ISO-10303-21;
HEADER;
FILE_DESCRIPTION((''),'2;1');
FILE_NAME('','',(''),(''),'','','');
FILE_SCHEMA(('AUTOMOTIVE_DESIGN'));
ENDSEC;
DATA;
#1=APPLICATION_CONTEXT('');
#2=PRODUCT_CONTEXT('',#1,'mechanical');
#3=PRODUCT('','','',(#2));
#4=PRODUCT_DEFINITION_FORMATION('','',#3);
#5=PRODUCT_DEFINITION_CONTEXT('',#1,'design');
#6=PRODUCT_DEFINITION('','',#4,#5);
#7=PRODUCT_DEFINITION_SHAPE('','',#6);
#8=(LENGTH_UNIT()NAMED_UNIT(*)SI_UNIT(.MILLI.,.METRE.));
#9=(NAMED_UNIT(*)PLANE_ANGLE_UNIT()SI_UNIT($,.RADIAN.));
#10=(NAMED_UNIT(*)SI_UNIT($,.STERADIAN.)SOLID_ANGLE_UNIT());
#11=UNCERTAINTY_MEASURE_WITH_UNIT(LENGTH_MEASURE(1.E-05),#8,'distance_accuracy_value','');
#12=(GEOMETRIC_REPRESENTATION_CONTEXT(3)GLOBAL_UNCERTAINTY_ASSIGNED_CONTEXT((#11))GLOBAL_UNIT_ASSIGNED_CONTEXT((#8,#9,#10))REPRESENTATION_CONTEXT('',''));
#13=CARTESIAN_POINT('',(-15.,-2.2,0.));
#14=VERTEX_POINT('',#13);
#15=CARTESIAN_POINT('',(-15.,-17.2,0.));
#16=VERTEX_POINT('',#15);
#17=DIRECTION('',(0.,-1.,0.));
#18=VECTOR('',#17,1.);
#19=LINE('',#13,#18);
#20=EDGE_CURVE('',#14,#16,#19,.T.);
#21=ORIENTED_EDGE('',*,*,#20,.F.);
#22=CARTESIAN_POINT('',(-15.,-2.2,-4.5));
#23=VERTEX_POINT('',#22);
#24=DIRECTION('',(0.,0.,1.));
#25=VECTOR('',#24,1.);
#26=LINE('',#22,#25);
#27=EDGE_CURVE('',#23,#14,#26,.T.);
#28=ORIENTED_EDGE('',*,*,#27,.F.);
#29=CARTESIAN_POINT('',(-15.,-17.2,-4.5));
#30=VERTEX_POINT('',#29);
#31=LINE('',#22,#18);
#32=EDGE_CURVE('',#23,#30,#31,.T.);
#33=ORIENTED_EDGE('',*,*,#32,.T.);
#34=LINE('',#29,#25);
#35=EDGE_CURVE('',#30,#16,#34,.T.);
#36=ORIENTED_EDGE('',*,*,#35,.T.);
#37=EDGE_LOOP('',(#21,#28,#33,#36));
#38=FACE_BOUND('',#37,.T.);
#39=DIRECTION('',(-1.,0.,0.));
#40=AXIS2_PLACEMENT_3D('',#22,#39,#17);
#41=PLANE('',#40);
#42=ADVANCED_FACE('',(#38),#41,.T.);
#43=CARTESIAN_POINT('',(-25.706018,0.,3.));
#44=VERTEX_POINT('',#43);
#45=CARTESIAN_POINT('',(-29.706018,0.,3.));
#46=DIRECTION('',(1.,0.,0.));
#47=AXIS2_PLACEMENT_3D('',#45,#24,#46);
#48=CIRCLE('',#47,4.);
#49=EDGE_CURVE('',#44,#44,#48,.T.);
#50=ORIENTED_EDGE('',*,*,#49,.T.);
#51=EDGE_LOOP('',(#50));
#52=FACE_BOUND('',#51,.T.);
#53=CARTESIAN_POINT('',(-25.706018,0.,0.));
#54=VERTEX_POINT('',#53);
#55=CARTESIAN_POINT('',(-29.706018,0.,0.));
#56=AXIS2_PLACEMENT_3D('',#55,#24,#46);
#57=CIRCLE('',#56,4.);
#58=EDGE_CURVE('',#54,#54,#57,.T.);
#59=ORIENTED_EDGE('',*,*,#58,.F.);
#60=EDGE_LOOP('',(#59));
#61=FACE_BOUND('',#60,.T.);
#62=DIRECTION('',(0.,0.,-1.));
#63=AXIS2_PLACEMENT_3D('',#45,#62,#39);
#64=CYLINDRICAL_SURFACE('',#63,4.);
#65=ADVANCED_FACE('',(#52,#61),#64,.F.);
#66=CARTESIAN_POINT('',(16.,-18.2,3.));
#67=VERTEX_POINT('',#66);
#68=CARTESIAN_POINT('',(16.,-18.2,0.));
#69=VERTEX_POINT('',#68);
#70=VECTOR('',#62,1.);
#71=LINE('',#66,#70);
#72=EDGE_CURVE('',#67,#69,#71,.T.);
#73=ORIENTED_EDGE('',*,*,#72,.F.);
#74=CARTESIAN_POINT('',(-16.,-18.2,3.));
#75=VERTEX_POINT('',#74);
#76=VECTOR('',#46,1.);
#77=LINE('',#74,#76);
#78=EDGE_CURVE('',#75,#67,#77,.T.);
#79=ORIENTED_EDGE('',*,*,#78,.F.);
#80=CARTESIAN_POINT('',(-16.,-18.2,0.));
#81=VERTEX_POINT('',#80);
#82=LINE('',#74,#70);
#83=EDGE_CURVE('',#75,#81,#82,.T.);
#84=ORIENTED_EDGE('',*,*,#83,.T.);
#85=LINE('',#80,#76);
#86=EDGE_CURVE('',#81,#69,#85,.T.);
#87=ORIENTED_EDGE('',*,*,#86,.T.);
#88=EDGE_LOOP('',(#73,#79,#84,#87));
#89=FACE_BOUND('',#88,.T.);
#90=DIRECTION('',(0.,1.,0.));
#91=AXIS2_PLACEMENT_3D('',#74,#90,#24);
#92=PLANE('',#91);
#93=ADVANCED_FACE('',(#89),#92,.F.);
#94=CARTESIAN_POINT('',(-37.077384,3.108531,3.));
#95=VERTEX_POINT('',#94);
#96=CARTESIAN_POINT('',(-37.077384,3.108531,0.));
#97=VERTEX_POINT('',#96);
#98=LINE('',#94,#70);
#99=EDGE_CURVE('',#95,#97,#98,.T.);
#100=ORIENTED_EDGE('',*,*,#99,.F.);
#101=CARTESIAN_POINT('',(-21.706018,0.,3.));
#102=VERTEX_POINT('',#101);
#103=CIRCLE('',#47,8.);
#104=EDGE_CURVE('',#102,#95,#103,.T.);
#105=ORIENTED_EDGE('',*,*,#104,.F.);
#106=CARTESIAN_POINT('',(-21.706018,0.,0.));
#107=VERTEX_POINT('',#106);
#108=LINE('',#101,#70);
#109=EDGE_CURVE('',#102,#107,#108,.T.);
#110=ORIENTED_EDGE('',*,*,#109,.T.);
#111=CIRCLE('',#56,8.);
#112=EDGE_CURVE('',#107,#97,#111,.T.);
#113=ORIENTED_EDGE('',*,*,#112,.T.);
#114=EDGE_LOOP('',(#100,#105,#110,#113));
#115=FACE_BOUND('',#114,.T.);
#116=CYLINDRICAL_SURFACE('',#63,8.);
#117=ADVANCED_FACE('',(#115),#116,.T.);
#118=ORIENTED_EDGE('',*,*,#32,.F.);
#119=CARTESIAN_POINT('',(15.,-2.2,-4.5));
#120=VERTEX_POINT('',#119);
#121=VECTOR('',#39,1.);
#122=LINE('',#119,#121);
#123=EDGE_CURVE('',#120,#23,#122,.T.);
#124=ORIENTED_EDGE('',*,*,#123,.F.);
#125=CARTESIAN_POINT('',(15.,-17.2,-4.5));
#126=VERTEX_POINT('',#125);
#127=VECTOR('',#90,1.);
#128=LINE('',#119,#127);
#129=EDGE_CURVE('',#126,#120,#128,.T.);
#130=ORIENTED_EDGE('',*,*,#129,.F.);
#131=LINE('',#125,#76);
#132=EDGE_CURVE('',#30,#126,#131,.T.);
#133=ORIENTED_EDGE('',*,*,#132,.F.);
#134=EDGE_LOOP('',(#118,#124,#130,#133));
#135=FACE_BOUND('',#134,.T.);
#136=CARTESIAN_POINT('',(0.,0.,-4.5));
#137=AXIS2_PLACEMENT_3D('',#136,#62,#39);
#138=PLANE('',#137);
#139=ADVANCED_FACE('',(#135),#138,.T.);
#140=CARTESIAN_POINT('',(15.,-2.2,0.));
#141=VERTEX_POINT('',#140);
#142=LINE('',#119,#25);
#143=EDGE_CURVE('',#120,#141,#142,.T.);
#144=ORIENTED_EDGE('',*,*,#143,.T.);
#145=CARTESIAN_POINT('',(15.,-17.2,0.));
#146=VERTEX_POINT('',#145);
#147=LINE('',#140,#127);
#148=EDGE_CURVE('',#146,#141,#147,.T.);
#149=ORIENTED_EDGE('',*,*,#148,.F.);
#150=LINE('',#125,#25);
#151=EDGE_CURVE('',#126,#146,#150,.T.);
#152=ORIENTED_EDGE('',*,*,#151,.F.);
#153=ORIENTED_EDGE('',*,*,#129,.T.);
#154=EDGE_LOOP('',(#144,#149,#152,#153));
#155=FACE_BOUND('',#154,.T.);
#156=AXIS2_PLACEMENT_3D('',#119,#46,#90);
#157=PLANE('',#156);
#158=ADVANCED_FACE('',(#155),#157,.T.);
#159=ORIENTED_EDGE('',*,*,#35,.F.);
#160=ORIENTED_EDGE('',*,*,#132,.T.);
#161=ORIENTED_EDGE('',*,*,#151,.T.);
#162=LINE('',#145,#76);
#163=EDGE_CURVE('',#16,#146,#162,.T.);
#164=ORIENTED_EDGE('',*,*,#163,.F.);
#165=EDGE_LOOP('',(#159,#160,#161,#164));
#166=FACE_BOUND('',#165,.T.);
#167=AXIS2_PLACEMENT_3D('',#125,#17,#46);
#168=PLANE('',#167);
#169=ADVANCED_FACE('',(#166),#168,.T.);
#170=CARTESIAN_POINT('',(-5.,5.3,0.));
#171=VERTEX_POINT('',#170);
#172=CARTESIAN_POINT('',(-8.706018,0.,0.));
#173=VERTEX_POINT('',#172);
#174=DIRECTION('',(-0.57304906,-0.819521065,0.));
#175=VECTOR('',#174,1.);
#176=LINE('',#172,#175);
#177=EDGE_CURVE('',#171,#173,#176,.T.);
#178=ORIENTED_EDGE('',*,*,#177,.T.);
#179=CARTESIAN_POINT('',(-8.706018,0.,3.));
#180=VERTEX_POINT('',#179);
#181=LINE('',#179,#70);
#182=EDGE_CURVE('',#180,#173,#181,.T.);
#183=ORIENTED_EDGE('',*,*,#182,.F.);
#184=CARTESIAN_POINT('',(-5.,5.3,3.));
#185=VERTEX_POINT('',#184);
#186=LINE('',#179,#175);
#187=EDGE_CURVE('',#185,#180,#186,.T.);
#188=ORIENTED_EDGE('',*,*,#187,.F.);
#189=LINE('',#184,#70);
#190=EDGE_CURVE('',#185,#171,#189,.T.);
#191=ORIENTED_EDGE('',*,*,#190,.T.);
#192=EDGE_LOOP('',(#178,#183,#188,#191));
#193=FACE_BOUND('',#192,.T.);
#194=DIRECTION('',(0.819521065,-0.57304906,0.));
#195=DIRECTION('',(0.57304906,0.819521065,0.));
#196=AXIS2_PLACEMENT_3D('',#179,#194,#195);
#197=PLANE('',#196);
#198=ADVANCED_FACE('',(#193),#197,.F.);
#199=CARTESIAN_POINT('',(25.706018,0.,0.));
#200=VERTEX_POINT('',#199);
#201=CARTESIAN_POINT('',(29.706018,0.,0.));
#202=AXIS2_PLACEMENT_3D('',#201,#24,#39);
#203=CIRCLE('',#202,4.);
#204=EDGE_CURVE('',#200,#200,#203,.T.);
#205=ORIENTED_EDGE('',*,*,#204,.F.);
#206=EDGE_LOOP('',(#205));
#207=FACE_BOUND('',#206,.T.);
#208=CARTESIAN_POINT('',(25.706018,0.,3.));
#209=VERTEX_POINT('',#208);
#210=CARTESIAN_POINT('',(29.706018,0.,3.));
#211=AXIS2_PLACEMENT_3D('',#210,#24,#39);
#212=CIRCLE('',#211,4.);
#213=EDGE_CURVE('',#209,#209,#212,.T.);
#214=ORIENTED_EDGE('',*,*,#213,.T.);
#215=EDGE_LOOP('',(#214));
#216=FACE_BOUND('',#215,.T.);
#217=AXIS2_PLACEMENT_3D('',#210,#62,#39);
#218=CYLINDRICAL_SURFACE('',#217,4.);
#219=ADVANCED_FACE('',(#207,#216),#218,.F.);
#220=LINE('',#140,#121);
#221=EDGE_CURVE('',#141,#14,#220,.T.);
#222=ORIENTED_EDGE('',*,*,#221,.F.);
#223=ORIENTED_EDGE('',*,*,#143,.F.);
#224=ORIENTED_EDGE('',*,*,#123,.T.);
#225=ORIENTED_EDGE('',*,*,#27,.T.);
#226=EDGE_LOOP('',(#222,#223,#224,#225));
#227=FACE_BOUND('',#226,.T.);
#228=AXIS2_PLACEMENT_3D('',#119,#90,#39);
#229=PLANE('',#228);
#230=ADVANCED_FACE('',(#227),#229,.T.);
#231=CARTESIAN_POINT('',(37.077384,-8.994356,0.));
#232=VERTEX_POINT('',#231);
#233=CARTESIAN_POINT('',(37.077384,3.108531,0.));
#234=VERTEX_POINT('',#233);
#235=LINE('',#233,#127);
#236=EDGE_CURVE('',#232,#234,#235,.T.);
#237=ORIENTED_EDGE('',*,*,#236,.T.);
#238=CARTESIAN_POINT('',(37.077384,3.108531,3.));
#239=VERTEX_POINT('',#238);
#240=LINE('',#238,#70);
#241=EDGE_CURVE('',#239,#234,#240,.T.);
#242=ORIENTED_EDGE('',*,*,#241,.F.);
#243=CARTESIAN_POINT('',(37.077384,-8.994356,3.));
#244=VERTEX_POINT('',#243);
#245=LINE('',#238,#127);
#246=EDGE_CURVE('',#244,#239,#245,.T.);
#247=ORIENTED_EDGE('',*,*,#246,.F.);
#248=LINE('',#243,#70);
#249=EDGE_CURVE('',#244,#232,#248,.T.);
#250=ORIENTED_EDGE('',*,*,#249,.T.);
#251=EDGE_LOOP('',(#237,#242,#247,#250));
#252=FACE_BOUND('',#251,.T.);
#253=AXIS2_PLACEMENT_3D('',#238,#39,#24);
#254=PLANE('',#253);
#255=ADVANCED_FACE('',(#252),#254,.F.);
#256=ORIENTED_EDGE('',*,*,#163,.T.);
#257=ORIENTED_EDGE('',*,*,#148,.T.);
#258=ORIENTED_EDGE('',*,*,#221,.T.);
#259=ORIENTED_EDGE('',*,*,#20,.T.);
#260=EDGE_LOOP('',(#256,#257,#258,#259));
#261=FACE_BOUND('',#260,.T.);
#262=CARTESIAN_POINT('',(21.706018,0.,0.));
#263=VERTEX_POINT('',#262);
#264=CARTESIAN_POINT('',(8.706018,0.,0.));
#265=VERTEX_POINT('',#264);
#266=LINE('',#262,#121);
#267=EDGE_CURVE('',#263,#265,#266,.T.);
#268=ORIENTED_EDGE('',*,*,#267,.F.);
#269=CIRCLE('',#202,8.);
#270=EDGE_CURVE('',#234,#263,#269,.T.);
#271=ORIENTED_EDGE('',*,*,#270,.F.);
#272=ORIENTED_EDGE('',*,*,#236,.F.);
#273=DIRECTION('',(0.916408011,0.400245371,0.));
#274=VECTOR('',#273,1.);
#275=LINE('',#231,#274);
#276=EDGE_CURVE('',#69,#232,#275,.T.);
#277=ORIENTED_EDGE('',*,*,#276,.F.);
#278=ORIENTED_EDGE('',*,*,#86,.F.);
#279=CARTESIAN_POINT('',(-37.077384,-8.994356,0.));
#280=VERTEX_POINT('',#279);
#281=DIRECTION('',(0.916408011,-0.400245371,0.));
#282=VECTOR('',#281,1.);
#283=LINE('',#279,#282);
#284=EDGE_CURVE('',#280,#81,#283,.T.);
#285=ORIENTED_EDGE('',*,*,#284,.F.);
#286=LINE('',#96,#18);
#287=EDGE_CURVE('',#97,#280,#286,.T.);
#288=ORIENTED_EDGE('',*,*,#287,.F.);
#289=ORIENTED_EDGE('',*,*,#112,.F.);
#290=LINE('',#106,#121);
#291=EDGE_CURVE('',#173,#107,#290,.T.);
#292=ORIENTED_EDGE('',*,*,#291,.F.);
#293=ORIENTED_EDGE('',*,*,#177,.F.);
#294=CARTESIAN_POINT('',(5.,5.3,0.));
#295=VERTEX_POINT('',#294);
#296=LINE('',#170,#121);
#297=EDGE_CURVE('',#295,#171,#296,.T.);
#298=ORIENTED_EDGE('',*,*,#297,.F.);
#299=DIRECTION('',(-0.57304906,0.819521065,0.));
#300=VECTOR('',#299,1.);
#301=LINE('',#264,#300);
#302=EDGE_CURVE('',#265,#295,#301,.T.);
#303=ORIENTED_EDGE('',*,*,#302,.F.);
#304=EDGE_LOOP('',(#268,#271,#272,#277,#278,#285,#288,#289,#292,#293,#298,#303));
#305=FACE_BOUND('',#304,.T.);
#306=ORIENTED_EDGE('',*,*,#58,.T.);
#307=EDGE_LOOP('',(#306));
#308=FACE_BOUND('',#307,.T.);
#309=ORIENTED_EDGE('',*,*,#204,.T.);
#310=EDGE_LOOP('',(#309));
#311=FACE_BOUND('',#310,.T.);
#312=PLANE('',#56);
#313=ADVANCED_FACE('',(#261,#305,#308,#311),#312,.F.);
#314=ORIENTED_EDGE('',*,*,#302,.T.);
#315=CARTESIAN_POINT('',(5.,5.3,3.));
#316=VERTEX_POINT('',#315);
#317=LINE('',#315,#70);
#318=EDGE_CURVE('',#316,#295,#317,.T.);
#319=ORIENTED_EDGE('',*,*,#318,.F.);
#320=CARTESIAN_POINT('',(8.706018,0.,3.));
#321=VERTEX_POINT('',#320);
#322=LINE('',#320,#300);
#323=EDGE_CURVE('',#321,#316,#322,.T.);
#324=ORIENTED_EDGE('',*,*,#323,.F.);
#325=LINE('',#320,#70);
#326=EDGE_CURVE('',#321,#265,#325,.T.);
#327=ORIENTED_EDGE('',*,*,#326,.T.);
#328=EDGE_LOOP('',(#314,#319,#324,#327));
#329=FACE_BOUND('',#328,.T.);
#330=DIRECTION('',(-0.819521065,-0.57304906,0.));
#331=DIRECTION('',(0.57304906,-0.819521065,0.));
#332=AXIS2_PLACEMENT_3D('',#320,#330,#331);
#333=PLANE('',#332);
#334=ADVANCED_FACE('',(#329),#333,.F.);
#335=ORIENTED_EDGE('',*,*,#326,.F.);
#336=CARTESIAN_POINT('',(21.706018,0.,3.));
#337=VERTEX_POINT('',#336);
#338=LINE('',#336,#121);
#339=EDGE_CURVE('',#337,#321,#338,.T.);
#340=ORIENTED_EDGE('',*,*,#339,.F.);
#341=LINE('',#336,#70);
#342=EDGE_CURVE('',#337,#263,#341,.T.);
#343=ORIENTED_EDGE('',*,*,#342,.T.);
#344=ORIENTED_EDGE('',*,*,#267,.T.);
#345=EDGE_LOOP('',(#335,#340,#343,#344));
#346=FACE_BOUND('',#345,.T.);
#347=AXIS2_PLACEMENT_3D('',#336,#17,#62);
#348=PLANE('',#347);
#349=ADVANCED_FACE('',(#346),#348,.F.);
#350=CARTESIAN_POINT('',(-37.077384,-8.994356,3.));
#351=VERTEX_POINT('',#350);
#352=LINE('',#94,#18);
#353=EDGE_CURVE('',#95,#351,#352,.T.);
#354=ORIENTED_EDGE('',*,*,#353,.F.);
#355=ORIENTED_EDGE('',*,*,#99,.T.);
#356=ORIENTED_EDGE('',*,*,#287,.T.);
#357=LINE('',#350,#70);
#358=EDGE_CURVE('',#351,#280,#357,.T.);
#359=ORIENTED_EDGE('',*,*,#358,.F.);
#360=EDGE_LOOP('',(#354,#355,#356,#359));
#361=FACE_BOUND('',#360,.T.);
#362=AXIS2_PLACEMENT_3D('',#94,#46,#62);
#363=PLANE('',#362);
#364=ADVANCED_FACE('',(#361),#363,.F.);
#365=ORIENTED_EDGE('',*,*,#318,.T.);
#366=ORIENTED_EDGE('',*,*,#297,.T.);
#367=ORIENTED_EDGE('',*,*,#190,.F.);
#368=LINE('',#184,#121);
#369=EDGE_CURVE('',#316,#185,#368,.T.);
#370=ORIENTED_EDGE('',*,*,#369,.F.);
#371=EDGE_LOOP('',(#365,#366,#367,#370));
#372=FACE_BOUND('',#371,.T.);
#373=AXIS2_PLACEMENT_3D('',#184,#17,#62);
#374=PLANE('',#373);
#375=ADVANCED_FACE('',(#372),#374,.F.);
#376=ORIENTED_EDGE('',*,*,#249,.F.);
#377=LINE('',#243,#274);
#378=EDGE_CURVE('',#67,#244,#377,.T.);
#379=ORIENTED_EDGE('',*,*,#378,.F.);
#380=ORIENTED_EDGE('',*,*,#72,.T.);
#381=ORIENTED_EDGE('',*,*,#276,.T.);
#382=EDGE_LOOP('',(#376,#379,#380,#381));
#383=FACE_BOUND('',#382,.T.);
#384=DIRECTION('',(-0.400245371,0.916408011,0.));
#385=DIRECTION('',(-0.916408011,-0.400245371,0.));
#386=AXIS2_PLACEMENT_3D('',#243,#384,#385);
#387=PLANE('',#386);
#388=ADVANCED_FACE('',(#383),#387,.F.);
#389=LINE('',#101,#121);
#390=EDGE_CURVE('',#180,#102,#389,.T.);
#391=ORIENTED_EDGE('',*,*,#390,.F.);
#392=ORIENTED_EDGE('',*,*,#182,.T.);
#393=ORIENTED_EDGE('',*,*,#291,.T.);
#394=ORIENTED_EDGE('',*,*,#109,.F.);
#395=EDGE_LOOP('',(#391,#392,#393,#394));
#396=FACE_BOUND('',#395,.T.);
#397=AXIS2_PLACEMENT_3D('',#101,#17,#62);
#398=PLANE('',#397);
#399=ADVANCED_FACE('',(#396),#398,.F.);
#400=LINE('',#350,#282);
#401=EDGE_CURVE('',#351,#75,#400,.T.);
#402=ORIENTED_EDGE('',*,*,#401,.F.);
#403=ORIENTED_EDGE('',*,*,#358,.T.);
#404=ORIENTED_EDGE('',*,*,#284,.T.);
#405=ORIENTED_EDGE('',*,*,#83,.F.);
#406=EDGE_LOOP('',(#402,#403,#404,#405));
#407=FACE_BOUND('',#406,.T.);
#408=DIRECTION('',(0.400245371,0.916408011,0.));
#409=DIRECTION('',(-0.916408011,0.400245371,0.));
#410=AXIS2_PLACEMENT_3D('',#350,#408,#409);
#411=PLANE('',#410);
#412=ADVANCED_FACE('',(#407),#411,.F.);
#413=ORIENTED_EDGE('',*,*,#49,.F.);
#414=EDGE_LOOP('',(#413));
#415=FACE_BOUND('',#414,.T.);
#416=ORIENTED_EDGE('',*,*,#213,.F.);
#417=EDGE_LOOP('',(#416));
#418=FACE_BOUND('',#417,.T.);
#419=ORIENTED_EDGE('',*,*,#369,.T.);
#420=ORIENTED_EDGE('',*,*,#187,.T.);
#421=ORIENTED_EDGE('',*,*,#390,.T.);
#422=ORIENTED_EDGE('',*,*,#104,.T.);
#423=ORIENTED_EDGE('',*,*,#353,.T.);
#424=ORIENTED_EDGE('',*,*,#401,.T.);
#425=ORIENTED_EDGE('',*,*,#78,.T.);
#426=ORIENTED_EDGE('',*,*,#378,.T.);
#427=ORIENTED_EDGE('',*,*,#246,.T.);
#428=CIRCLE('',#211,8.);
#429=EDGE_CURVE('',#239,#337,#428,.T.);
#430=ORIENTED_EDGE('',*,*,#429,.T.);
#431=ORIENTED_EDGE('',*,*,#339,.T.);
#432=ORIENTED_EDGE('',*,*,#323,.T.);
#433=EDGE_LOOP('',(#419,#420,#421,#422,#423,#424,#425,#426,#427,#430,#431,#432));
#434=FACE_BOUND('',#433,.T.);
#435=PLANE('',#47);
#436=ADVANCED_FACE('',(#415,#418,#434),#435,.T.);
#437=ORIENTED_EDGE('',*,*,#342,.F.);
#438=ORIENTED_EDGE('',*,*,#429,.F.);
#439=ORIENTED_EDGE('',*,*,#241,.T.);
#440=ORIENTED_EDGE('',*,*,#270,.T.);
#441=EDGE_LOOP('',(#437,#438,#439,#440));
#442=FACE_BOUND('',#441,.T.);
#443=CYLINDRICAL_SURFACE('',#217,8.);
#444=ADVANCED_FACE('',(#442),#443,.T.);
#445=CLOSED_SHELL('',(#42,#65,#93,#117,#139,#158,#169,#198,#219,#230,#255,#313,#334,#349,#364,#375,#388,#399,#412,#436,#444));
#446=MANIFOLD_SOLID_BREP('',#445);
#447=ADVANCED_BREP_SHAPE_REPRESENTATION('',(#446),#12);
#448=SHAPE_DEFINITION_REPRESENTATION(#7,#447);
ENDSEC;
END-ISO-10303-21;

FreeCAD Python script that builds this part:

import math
import FreeCAD as App
import Part
import Sketcher
Q = App.Units.Quantity

doc = App.newDocument("Part")
body = doc.addObject("PartDesign::Body", "Body")

# Sketch on XY plane
sketch1 = body.newObject("Sketcher::SketchObject", "Sketch")
sketch1.AttachmentSupport = (doc.getObject("XY_Plane"), [""])
sketch1.MapMode = "FlatFace"
sketch1.addGeometry(Part.LineSegment(App.Vector(-8.706018, 0, 0), App.Vector(-21.706018, 0, 0)), False)
sketch1.addGeometry(Part.ArcOfCircle(Part.Circle(App.Vector(-29.706018, 0, 0), App.Vector(0, 0, 1), 8), math.radians(0), math.radians(157.134678)), False)
sketch1.addGeometry(Part.LineSegment(App.Vector(-37.077384, 3.108531, 0), App.Vector(-37.077384, -8.994356, 0)), False)
sketch1.addGeometry(Part.LineSegment(App.Vector(-37.077384, -8.994356, 0), App.Vector(-16, -18.2, 0)), False)
sketch1.addGeometry(Part.LineSegment(App.Vector(-16, -18.2, 0), App.Vector(16, -18.2, 0)), False)
sketch1.addGeometry(Part.LineSegment(App.Vector(16, -18.2, 0), App.Vector(37.077384, -8.994356, 0)), False)
sketch1.addGeometry(Part.LineSegment(App.Vector(37.077384, -8.994356, 0), App.Vector(37.077384, 3.108531, 0)), False)
sketch1.addGeometry(Part.ArcOfCircle(Part.Circle(App.Vector(29.706018, 0, 0), App.Vector(0, 0, 1), 8), math.radians(22.865322), math.radians(180)), False)
sketch1.addGeometry(Part.LineSegment(App.Vector(21.706018, 0, 0), App.Vector(8.706018, 0, 0)), False)
sketch1.addGeometry(Part.LineSegment(App.Vector(8.706018, 0, 0), App.Vector(5, 5.3, 0)), False)
sketch1.addGeometry(Part.LineSegment(App.Vector(5, 5.3, 0), App.Vector(-5, 5.3, 0)), False)
sketch1.addGeometry(Part.LineSegment(App.Vector(-5, 5.3, 0), App.Vector(-8.706018, 0, 0)), False)
sketch1.addGeometry(Part.Circle(App.Vector(29.706018, 0, 0), App.Vector(0, 0, 1), 4), False)
sketch1.addGeometry(Part.Circle(App.Vector(-29.706018, 0, 0), App.Vector(0, 0, 1), 4), False)
sketch1.addConstraint(Sketcher.Constraint("Coincident", 0, 2, 1, 1))
sketch1.addConstraint(Sketcher.Constraint("Coincident", 1, 2, 2, 1))
sketch1.addConstraint(Sketcher.Constraint("Coincident", 2, 2, 3, 1))
sketch1.addConstraint(Sketcher.Constraint("Coincident", 3, 2, 4, 1))
sketch1.addConstraint(Sketcher.Constraint("Coincident", 4, 2, 5, 1))
sketch1.addConstraint(Sketcher.Constraint("Coincident", 5, 2, 6, 1))
sketch1.addConstraint(Sketcher.Constraint("Coincident", 6, 2, 7, 1))
sketch1.addConstraint(Sketcher.Constraint("Coincident", 7, 2, 8, 1))
sketch1.addConstraint(Sketcher.Constraint("Coincident", 8, 2, 9, 1))
sketch1.addConstraint(Sketcher.Constraint("Coincident", 9, 2, 10, 1))
sketch1.addConstraint(Sketcher.Constraint("Coincident", 10, 2, 11, 1))
sketch1.addConstraint(Sketcher.Constraint("Coincident", 11, 2, 0, 1))
sketch1.addConstraint(Sketcher.Constraint("Horizontal", 0))
sketch1.addConstraint(Sketcher.Constraint("Vertical", 2))
sketch1.addConstraint(Sketcher.Constraint("Horizontal", 4))
sketch1.addConstraint(Sketcher.Constraint("Vertical", 6))
sketch1.addConstraint(Sketcher.Constraint("Horizontal", 8))
sketch1.addConstraint(Sketcher.Constraint("Horizontal", 10))
sketch1.addConstraint(Sketcher.Constraint("Coincident", 12, 3, 7, 3))
sketch1.addConstraint(Sketcher.Constraint("Coincident", 13, 3, 1, 3))
sketch1.addConstraint(Sketcher.Constraint("Equal", 1, 7))
sketch1.addConstraint(Sketcher.Constraint("Equal", 12, 13))
sketch1.addConstraint(Sketcher.Constraint("Symmetric", 1, 3, 7, 3, -1, 1))
sketch1.addConstraint(Sketcher.Constraint("Symmetric", 8, 2, 11, 2, -1, 1))
sketch1.addConstraint(Sketcher.Constraint("Symmetric", 2, 2, 5, 2, -2))
sketch1.addConstraint(Sketcher.Constraint("PointOnObject", 1, 3, -1))
sketch1.addConstraint(Sketcher.Constraint("PointOnObject", 0, 2, -1))
sketch1.addConstraint(Sketcher.Constraint("Equal", 3, 5))
sketch1.addConstraint(Sketcher.Constraint("Equal", 9, 11))
sketch1.addConstraint(Sketcher.Constraint("Diameter", 12, Q("8 mm")))
sketch1.addConstraint(Sketcher.Constraint("Radius", 1, Q("8 mm")))
sketch1.addConstraint(Sketcher.Constraint("DistanceX", 0, 2, 0, 1, Q("13 mm")))
sketch1.addConstraint(Sketcher.Constraint("DistanceX", 4, 1, 4, 2, Q("32 mm")))
sketch1.addConstraint(Sketcher.Constraint("DistanceX", 10, 2, 10, 1, Q("10 mm")))
sketch1.addConstraint(Sketcher.Constraint("Distance", 3, Q("23 mm")))
sketch1.addConstraint(Sketcher.Constraint("DistanceY", 3, 2, -1, 1, Q("18.2 mm")))
sketch1.addConstraint(Sketcher.Constraint("DistanceY", -1, 1, 9, 2, Q("5.3 mm")))
sketch1.addConstraint(Sketcher.Constraint("Distance", 9, Q("6.467192 mm")))
sketch1.addConstraint(Sketcher.Constraint("DistanceY", 2, 2, 2, 1, Q("12.102887 mm")))
pad1 = body.newObject("PartDesign::Pad", "Pad")
pad1.Profile = sketch1
pad1.Length = 3

# Sketch on XY plane
sketch2 = body.newObject("Sketcher::SketchObject", "Sketch001")
sketch2.AttachmentSupport = (doc.getObject("XY_Plane"), [""])
sketch2.MapMode = "FlatFace"
sketch2.addGeometry(Part.LineSegment(App.Vector(-15, -2.2, 0), App.Vector(-15, -17.2, 0)), False)
sketch2.addGeometry(Part.LineSegment(App.Vector(-15, -17.2, 0), App.Vector(15, -17.2, 0)), False)
sketch2.addGeometry(Part.LineSegment(App.Vector(15, -17.2, 0), App.Vector(15, -2.2, 0)), False)
sketch2.addGeometry(Part.LineSegment(App.Vector(15, -2.2, 0), App.Vector(-15, -2.2, 0)), False)
sketch2.addConstraint(Sketcher.Constraint("Coincident", 0, 2, 1, 1))
sketch2.addConstraint(Sketcher.Constraint("Coincident", 1, 2, 2, 1))
sketch2.addConstraint(Sketcher.Constraint("Coincident", 2, 2, 3, 1))
sketch2.addConstraint(Sketcher.Constraint("Coincident", 3, 2, 0, 1))
sketch2.addConstraint(Sketcher.Constraint("Vertical", 0))
sketch2.addConstraint(Sketcher.Constraint("Horizontal", 1))
sketch2.addConstraint(Sketcher.Constraint("Vertical", 2))
sketch2.addConstraint(Sketcher.Constraint("Horizontal", 3))
sketch2.addConstraint(Sketcher.Constraint("DistanceX", 1, 1, 1, 2, Q("30 mm")))
sketch2.addConstraint(Sketcher.Constraint("DistanceY", 0, 2, 0, 1, Q("15 mm")))
sketch2.addConstraint(Sketcher.Constraint("DistanceX", 0, 2, -1, 1, Q("15 mm")))
sketch2.addConstraint(Sketcher.Constraint("DistanceY", 0, 2, -1, 1, Q("17.2 mm")))
pad2 = body.newObject("PartDesign::Pad", "Pad001")
pad2.Profile = sketch2
pad2.Length = 4.5
pad2.Reversed = True

doc.recompute()
